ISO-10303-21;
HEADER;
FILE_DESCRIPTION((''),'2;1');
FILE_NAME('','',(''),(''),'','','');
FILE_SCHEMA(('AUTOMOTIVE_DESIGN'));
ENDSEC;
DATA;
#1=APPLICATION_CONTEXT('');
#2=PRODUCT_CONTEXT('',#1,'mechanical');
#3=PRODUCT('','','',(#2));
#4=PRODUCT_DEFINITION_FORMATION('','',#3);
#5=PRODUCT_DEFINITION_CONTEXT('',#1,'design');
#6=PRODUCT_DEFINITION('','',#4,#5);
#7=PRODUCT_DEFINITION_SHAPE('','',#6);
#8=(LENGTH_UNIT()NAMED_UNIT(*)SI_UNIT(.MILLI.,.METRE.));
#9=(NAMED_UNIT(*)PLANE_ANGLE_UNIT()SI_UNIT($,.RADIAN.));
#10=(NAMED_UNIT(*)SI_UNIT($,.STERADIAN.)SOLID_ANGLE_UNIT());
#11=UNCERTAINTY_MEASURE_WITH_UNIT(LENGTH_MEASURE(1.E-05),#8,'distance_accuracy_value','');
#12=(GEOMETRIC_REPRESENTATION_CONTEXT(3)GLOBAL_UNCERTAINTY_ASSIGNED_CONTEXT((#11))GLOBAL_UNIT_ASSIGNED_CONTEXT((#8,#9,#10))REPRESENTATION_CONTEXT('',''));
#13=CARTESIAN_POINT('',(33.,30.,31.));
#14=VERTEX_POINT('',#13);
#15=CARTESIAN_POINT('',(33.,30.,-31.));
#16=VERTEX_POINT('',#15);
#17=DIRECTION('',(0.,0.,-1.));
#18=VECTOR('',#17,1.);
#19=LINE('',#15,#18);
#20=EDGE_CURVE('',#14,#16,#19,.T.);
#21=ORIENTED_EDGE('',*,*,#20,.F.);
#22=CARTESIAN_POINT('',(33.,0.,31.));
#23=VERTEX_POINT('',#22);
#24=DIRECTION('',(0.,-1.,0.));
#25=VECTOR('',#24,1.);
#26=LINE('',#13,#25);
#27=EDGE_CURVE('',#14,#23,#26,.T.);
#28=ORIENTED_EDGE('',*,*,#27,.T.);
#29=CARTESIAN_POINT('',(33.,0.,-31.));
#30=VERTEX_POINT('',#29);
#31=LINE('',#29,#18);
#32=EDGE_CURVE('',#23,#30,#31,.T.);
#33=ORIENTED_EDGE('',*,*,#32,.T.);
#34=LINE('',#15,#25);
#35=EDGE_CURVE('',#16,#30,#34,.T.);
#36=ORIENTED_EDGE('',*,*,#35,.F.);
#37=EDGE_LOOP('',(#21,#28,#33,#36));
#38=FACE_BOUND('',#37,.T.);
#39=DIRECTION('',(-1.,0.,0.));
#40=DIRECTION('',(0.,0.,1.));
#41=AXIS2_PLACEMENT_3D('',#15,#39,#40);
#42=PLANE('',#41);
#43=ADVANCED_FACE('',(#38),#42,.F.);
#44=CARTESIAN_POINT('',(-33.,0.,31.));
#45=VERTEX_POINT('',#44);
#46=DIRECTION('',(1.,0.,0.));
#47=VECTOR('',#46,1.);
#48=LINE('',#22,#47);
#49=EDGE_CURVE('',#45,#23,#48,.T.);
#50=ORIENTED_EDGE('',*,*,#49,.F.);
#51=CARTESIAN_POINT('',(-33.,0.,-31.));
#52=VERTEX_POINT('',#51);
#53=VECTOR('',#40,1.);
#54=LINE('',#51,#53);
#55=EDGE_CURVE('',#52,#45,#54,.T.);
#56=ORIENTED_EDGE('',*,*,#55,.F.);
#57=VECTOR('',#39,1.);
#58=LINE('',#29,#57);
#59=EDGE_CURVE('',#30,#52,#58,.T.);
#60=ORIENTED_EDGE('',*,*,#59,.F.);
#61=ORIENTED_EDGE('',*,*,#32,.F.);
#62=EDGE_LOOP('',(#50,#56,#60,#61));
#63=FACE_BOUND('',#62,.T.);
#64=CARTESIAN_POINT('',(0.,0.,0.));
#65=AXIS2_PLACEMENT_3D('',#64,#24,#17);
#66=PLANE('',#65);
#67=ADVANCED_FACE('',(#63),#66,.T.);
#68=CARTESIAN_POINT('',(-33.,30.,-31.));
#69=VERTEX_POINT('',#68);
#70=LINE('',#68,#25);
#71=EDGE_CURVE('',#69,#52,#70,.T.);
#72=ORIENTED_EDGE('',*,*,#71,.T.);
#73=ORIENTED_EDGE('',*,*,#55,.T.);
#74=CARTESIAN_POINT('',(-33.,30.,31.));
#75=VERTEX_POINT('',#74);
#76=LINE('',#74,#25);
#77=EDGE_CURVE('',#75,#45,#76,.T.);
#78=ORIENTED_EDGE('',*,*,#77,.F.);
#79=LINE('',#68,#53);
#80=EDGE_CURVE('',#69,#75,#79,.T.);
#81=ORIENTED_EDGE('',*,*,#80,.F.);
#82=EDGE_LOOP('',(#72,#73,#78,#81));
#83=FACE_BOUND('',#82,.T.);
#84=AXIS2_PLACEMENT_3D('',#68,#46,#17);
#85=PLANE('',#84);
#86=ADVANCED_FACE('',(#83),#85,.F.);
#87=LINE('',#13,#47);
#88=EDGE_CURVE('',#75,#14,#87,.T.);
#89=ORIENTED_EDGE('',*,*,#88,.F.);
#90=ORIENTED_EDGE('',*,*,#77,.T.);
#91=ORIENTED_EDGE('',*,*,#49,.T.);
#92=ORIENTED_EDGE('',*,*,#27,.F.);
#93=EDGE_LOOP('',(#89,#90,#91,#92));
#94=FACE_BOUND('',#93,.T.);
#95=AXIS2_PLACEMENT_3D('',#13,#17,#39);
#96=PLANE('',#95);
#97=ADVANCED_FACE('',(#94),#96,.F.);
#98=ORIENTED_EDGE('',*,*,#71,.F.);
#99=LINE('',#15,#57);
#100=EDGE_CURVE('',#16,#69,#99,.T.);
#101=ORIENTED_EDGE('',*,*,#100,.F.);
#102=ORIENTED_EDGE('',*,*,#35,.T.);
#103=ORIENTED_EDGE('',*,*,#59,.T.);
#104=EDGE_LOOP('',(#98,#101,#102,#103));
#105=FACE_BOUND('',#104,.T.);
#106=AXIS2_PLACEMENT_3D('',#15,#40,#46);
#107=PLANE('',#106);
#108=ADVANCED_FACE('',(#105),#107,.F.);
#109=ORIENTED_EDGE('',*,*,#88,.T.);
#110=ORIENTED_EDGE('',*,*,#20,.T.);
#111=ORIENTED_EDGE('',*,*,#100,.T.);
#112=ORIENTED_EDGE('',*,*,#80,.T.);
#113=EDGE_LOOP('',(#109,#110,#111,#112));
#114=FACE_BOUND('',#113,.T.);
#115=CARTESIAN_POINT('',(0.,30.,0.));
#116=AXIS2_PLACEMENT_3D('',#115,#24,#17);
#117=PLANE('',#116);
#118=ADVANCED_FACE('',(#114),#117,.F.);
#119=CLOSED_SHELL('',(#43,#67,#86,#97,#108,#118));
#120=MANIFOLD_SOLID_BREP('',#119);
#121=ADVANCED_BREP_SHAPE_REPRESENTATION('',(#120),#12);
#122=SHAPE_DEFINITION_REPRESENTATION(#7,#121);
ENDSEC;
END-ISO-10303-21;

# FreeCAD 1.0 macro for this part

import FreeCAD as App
import Part
import Sketcher

V = App.Vector


def add_polygon(sketch, points):
    """Adds a closed chain of lines whose ends are joined by coincident constraints."""
    first, n = sketch.GeometryCount, len(points)
    for a, b in zip(points, points[1:] + points[:1]):
        sketch.addGeometry(Part.LineSegment(App.Vector(*a, 0), App.Vector(*b, 0)), False)
    for i in range(n):
        sketch.addConstraint(Sketcher.Constraint("Coincident", first + i, 2, first + (i + 1) % n, 1))

doc = App.newDocument("Part")
body = doc.addObject("PartDesign::Body", "Body")

# Sketch on XZ plane
sketch1 = body.newObject("Sketcher::SketchObject", "Sketch")
sketch1.AttachmentSupport = (doc.getObject("XZ_Plane"), [""])
sketch1.MapMode = "FlatFace"
add_polygon(sketch1, [(-33, -31), (-33, 31), (33, 31), (33, -31)])  # lines 0-3
sketch1.addConstraint(Sketcher.Constraint("Vertical", 0))
sketch1.addConstraint(Sketcher.Constraint("Horizontal", 1))
sketch1.addConstraint(Sketcher.Constraint("Vertical", 2))
sketch1.addConstraint(Sketcher.Constraint("Horizontal", 3))
sketch1.addConstraint(Sketcher.Constraint("Symmetric", 0, 2, 2, 2, -1, 1))
sketch1.addConstraint(Sketcher.Constraint("DistanceX", 1, 1, 1, 2, 66.0))
sketch1.addConstraint(Sketcher.Constraint("DistanceY", 0, 1, 0, 2, 62.0))
pad1 = body.newObject("PartDesign::Pad", "Pad")
pad1.Profile = sketch1
pad1.Length = 30
pad1.Reversed = True

doc.recompute()
